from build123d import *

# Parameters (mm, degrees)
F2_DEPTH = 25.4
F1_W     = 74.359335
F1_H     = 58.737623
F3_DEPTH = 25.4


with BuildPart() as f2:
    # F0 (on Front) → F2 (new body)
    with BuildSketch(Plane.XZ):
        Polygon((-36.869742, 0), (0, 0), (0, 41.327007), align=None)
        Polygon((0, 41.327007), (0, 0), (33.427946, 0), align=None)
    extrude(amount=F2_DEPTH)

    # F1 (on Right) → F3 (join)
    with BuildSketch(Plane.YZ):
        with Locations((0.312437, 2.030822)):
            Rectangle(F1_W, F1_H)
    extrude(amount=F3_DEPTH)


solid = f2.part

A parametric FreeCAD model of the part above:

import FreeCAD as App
import Part
import Sketcher

V = App.Vector
Q = App.Units.Quantity

doc = App.newDocument("Part")
body = doc.addObject("PartDesign::Body", "Body")

sketch1 = body.newObject("Sketcher::SketchObject", "Sketch")
sketch1.AttachmentSupport = (doc.getObject("XZ_Plane"), [""])
sketch1.MapMode = "FlatFace"
sketch1.addGeometry([
    Part.LineSegment(V(-37, 0, 0), V(33, 0, 0)),
    Part.LineSegment(V(33, 0, 0), V(0, 41, 0)),
    Part.LineSegment(V(0, 41, 0), V(-37, 0, 0)),
], False)
sketch1.addConstraint([
    Sketcher.Constraint("Coincident", 0, 2, 1, 1),
    Sketcher.Constraint("Coincident", 1, 2, 2, 1),
    Sketcher.Constraint("Coincident", 2, 2, 0, 1),
    Sketcher.Constraint("Horizontal", 0),
    Sketcher.Constraint("PointOnObject", 0, 2, -1),
    Sketcher.Constraint("PointOnObject", 1, 2, -2),
    Sketcher.Constraint("DistanceX", 0, 1, 0, 2, 70.297688),
    Sketcher.Constraint("Distance", 1, 53.154013),
    Sketcher.Constraint("Distance", 2, 55.383205),
])
pad1 = body.newObject("PartDesign::Pad", "Pad")
pad1.Profile = sketch1
pad1.Length = Q("1 in")

sketch2 = body.newObject("Sketcher::SketchObject", "Sketch001")
sketch2.AttachmentSupport = (doc.getObject("YZ_Plane"), [""])
sketch2.MapMode = "FlatFace"
sketch2.addGeometry([
    Part.LineSegment(V(-37, 31, 0), V(-37, -27, 0)),
    Part.LineSegment(V(-37, -27, 0), V(37, -27, 0)),
    Part.LineSegment(V(37, -27, 0), V(37, 31, 0)),
    Part.LineSegment(V(37, 31, 0), V(-37, 31, 0)),
], False)
sketch2.addConstraint([
    Sketcher.Constraint("Coincident", 0, 2, 1, 1),
    Sketcher.Constraint("Coincident", 1, 2, 2, 1),
    Sketcher.Constraint("Coincident", 2, 2, 3, 1),
    Sketcher.Constraint("Coincident", 3, 2, 0, 1),
    Sketcher.Constraint("Vertical", 0),
    Sketcher.Constraint("Horizontal", 1),
    Sketcher.Constraint("Vertical", 2),
    Sketcher.Constraint("Horizontal", 3),
    Sketcher.Constraint("DistanceX", 1, 1, 1, 2, 74.359335),
    Sketcher.Constraint("DistanceY", 0, 2, 0, 1, 58.737623),
    Sketcher.Constraint("DistanceX", 0, 2, -1, 1, 36.86723),
    Sketcher.Constraint("DistanceY", 0, 2, -1, 1, 27.337989),
])
pad2 = body.newObject("PartDesign::Pad", "Pad001")
pad2.Profile = sketch2
pad2.Length = Q("1 in")

doc.recompute()
